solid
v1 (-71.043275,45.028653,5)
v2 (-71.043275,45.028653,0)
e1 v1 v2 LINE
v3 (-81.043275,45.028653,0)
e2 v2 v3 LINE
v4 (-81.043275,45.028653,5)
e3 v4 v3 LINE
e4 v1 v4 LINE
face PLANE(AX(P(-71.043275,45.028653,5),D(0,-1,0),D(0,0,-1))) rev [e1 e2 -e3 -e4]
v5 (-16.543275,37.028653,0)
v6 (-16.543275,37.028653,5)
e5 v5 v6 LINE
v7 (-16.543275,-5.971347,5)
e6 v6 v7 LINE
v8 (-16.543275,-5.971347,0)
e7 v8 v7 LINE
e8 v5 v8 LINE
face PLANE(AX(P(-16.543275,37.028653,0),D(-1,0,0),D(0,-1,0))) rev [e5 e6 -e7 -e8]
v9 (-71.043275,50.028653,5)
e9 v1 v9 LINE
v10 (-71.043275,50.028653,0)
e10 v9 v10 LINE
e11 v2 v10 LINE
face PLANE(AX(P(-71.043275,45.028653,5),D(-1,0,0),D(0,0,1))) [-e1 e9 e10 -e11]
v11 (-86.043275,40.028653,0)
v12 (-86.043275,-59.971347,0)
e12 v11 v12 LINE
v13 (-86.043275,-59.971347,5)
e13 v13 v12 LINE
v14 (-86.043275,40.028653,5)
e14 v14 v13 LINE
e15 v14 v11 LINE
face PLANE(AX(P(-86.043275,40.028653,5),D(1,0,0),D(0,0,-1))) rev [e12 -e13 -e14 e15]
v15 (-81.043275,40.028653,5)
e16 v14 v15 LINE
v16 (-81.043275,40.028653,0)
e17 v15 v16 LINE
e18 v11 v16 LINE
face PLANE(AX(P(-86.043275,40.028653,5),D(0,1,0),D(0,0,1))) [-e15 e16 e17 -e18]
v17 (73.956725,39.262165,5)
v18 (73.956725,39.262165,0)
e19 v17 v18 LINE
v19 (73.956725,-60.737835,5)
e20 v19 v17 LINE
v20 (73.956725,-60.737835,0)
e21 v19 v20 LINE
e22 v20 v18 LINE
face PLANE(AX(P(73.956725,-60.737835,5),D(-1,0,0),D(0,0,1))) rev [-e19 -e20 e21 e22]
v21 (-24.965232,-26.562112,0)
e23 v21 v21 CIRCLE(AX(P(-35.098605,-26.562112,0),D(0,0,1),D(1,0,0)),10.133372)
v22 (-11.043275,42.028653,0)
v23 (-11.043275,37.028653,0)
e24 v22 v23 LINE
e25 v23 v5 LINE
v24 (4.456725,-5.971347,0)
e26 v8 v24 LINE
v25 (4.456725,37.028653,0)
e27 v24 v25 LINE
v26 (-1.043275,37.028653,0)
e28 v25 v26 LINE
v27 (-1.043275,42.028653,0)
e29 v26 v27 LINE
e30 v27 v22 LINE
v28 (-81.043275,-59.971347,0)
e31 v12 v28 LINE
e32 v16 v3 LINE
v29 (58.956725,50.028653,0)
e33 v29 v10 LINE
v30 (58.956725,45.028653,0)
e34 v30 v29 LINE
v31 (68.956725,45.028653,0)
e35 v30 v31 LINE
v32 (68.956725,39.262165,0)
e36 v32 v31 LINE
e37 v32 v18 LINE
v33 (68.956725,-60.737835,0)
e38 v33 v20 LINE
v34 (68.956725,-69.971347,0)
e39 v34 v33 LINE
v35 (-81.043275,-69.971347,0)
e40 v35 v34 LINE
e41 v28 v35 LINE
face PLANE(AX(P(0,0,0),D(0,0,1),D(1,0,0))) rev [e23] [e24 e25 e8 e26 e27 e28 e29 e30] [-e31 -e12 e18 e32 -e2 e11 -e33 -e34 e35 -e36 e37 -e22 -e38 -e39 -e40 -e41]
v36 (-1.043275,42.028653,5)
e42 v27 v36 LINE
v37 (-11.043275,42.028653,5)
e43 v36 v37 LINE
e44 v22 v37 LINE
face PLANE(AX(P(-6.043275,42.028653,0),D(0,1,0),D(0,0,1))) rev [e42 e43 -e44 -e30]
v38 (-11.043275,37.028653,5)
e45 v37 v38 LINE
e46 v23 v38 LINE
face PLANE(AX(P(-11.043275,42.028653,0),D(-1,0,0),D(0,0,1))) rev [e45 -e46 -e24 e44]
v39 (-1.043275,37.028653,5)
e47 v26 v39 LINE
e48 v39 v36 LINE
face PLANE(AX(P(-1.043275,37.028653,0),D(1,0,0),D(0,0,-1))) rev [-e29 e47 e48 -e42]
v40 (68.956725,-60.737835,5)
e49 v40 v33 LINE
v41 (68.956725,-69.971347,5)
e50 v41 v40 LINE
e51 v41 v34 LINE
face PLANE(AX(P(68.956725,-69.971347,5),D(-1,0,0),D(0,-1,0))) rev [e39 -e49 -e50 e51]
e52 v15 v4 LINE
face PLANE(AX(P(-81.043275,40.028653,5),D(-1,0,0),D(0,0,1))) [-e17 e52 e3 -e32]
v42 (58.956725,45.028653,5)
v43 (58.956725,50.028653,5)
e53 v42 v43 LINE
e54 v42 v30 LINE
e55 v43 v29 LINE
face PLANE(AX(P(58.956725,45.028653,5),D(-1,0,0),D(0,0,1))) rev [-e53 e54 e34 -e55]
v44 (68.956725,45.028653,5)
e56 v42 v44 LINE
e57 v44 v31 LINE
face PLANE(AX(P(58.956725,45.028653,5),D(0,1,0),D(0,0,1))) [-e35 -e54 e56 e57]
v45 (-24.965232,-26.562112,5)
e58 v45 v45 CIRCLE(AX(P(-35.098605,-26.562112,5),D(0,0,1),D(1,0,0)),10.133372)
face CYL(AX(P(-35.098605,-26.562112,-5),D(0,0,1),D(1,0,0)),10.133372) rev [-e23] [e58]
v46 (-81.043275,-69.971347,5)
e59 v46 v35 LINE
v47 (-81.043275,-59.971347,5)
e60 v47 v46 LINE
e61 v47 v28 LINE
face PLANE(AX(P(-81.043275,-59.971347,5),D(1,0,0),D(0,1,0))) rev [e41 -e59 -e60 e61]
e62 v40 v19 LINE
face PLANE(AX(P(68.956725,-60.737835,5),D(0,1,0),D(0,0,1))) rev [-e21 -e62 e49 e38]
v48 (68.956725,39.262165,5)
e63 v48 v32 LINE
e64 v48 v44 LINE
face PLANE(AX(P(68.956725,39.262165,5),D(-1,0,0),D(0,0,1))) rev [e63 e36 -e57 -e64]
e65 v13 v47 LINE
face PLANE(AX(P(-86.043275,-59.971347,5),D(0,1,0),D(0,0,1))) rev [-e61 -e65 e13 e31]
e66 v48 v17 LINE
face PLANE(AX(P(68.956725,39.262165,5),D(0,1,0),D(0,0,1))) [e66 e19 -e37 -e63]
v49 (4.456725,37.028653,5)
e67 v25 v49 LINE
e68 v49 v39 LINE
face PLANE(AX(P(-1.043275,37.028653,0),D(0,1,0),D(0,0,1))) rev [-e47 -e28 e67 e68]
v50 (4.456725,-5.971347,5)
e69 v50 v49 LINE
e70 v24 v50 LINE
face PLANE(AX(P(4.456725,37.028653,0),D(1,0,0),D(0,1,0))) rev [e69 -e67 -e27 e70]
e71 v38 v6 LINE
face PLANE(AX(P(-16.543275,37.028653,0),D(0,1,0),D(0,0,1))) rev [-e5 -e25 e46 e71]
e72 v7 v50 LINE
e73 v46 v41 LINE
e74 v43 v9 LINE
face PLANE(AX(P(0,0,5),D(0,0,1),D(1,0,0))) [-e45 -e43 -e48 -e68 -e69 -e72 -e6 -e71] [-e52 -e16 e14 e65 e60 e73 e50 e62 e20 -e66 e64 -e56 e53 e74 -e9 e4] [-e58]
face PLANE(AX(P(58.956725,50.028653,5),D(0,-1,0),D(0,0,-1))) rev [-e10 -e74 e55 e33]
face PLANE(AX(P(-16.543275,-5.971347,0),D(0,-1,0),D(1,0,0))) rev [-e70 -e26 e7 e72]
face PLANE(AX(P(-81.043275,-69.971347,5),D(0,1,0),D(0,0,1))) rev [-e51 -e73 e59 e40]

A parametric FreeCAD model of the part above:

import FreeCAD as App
import Part
import Sketcher

V = App.Vector
Q = App.Units.Quantity


def add_polygon(sketch, points):
    """Adds a closed chain of lines whose ends are joined by coincident constraints."""
    first, n = sketch.GeometryCount, len(points)
    for a, b in zip(points, points[1:] + points[:1]):
        sketch.addGeometry(Part.LineSegment(App.Vector(*a, 0), App.Vector(*b, 0)), False)
    for i in range(n):
        sketch.addConstraint(Sketcher.Constraint("Coincident", first + i, 2, first + (i + 1) % n, 1))

doc = App.newDocument("Part")
body = doc.addObject("PartDesign::Body", "Body")

# Sketch on XY plane
sketch1 = doc.addObject("Sketcher::SketchObject", "Sketch")
body.addObject(sketch1)
sketch1.AttachmentSupport = (doc.XY_Plane, [""])
sketch1.MapMode = "FlatFace"
add_polygon(sketch1, [(-81.043275, -69.971347), (68.956725, -69.971347), (68.956725, -60.737835), (73.956725, -60.737835), (73.956725, 39.262165), (68.956725, 39.262165), (68.956725, 45.028653), (58.956725, 45.028653), (58.956725, 50.028653), (-71.043275, 50.028653), (-71.043275, 45.028653), (-81.043275, 45.028653), (-81.043275, 40.028653), (-86.043275, 40.028653), (-86.043275, -59.971347), (-81.043275, -59.971347)])  # lines 0-15
sketch1.addConstraint([
    Sketcher.Constraint("Horizontal", 0),
    Sketcher.Constraint("Vertical", 1),
    Sketcher.Constraint("Horizontal", 2),
    Sketcher.Constraint("Vertical", 3),
    Sketcher.Constraint("Horizontal", 4),
    Sketcher.Constraint("Vertical", 5),
    Sketcher.Constraint("Horizontal", 6),
    Sketcher.Constraint("Vertical", 7),
    Sketcher.Constraint("Horizontal", 8),
    Sketcher.Constraint("Vertical", 9),
    Sketcher.Constraint("Horizontal", 10),
    Sketcher.Constraint("Vertical", 11),
    Sketcher.Constraint("Horizontal", 12),
    Sketcher.Constraint("Vertical", 13),
    Sketcher.Constraint("Horizontal", 14),
    Sketcher.Constraint("Vertical", 15),
    Sketcher.Constraint("Horizontal", 6, 2, 9, 2),
    Sketcher.Constraint("Vertical", 1, 2, 4, 2),
    Sketcher.Constraint("Vertical", 11, 2, 14, 2),
    Sketcher.Constraint("Equal", 6, 10),
    Sketcher.Constraint("Equal", 4, 12),
    Sketcher.Constraint("Equal", 14, 7),
    Sketcher.Constraint("Equal", 9, 11),
    Sketcher.Constraint("Equal", 3, 13),
    Sketcher.Constraint("Equal", 10, 15),
    Sketcher.Constraint("DistanceX", 0, 1, 0, 2, Q("150 mm")),
    Sketcher.Constraint("DistanceX", 2, 1, 2, 2, Q("5 mm")),
    Sketcher.Constraint("DistanceX", 6, 2, 6, 1, Q("10 mm")),
    Sketcher.Constraint("DistanceY", 3, 1, 3, 2, Q("100 mm")),
    Sketcher.Constraint("DistanceY", 1, 1, 1, 2, Q("9.233511 mm")),
    Sketcher.Constraint("DistanceX", -1, 1, 0, 2, Q("68.956725 mm")),
    Sketcher.Constraint("DistanceY", 0, 2, -1, 1, Q("69.971347 mm")),
])
pad1 = doc.addObject("PartDesign::Pad", "Pad")
body.addObject(pad1)
pad1.Profile = sketch1
pad1.Length = 5

# Sketch on XY plane
sketch2 = doc.addObject("Sketcher::SketchObject", "Sketch001")
body.addObject(sketch2)
sketch2.AttachmentSupport = (doc.XY_Plane, [""])
sketch2.MapMode = "FlatFace"
sketch2.AttachmentOffset = App.Placement(V(0, 0, 5), App.Rotation())
add_polygon(sketch2, [(-16.543275, 37.028653), (-16.543275, -5.971347), (4.456725, -5.971347), (4.456725, 37.028653), (-1.043275, 37.028653), (-1.043275, 42.028653), (-11.043275, 42.028653), (-11.043275, 37.028653)])  # lines 0-7
sketch2.addConstraint([
    Sketcher.Constraint("Vertical", 0),
    Sketcher.Constraint("Horizontal", 1),
    Sketcher.Constraint("Vertical", 2),
    Sketcher.Constraint("Horizontal", 3),
    Sketcher.Constraint("Vertical", 4),
    Sketcher.Constraint("Horizontal", 5),
    Sketcher.Constraint("Vertical", 6),
    Sketcher.Constraint("Horizontal", 7),
    Sketcher.Constraint("Horizontal", 3, 2, 6, 2),
    Sketcher.Constraint("Equal", 3, 7),
    Sketcher.Constraint("DistanceX", 1, 1, 1, 2, Q("21 mm")),
    Sketcher.Constraint("DistanceX", 5, 2, 5, 1, Q("10 mm")),
    Sketcher.Constraint("DistanceY", 0, 2, 0, 1, Q("43 mm")),
    Sketcher.Constraint("DistanceY", 4, 1, 4, 2, Q("5 mm")),
    Sketcher.Constraint("DistanceX", 0, 2, -1, 1, Q("16.543275 mm")),
    Sketcher.Constraint("DistanceY", 0, 2, -1, 1, Q("5.971347 mm")),
])
pocket1 = doc.addObject("PartDesign::Pocket", "Pocket")
body.addObject(pocket1)
pocket1.Profile = sketch2
pocket1.Length = 5

# Sketch on XY plane
sketch3 = doc.addObject("Sketcher::SketchObject", "Sketch002")
body.addObject(sketch3)
sketch3.AttachmentSupport = (doc.XY_Plane, [""])
sketch3.MapMode = "FlatFace"
sketch3.AttachmentOffset = App.Placement(V(0, 0, 5), App.Rotation())
sketch3.addGeometry(Part.Circle(V(-35.098605, -26.562112, 0), V(0, 0, 1), 10.133372), False)
sketch3.addConstraint([
    Sketcher.Constraint("Diameter", 0, Q("20.266745 mm")),
    Sketcher.Constraint("DistanceY", 0, 3, -1, 1, Q("26.562112 mm")),
    Sketcher.Constraint("DistanceX", 0, 3, -1, 1, Q("35.098605 mm")),
])
pocket2 = doc.addObject("PartDesign::Pocket", "Pocket001")
body.addObject(pocket2)
pocket2.Profile = sketch3
pocket2.Length = 10

doc.recompute()
